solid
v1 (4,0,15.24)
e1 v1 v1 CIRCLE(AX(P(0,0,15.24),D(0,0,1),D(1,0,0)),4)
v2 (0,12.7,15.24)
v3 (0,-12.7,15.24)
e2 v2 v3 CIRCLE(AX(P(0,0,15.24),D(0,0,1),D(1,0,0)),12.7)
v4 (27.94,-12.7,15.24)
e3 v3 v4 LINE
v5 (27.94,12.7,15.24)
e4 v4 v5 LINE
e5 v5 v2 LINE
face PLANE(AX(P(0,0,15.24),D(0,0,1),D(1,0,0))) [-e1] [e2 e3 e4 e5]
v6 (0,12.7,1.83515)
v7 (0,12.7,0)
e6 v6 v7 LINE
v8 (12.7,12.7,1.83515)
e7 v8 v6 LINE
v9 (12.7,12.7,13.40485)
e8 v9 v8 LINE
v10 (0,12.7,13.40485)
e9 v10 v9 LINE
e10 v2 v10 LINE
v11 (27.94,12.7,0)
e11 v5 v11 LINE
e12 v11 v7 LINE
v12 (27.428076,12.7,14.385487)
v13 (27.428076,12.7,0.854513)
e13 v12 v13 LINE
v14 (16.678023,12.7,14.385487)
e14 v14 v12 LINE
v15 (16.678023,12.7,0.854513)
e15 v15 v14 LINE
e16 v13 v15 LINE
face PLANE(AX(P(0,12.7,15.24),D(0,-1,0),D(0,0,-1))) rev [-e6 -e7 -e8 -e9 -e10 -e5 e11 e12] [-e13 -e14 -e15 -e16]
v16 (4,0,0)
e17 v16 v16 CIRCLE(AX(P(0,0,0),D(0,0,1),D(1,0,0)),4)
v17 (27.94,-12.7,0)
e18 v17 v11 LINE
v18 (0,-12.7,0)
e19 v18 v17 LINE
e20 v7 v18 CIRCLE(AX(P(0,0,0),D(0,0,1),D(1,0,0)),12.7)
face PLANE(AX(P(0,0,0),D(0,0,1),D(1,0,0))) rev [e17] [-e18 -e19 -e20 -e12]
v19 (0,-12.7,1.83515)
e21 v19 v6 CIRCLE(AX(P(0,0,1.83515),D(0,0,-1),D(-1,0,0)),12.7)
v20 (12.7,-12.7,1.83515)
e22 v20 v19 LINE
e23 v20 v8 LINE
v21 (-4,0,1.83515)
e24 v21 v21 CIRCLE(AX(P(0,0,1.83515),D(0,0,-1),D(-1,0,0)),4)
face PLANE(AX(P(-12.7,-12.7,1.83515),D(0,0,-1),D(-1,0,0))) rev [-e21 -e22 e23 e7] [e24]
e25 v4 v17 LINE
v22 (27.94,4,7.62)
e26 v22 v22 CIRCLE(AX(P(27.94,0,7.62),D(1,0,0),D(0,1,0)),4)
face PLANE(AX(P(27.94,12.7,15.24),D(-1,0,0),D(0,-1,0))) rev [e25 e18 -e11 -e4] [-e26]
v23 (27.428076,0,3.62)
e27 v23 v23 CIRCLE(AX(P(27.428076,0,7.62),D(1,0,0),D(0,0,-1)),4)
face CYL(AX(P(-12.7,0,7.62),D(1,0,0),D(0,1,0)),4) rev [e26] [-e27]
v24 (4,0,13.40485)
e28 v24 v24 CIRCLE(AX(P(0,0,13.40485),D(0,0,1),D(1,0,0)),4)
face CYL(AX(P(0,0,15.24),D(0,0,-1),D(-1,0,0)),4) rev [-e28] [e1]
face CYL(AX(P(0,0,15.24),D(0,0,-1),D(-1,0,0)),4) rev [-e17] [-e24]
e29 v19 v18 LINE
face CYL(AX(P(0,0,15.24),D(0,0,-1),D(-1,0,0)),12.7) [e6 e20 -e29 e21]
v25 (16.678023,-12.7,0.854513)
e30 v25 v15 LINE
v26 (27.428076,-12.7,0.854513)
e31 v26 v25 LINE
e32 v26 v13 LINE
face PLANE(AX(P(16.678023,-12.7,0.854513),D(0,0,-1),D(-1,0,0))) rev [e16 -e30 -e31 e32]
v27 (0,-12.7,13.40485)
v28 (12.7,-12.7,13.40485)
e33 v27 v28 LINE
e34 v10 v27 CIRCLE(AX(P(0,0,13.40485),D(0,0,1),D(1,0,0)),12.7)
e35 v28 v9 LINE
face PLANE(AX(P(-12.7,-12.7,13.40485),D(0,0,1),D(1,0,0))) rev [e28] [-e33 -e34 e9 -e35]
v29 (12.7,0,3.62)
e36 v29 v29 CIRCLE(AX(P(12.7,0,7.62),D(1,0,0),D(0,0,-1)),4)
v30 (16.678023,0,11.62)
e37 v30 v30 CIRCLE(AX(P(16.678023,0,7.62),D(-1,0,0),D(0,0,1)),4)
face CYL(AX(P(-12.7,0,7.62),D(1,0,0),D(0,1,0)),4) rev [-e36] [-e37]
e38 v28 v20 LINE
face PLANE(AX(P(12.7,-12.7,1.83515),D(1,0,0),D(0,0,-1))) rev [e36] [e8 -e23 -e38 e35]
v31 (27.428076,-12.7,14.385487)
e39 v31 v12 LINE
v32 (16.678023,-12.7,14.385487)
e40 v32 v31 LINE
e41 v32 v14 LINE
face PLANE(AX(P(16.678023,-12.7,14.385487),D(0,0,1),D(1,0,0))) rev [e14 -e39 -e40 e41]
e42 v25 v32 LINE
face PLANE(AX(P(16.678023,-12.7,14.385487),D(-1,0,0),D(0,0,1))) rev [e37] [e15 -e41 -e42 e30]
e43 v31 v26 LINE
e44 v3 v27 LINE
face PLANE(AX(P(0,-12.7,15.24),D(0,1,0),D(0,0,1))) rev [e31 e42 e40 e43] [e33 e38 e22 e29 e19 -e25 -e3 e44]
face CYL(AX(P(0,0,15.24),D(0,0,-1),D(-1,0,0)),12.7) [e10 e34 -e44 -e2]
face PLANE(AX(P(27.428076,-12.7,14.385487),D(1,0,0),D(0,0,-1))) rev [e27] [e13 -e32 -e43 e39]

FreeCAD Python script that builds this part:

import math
import FreeCAD as App
import Part
import Sketcher
from FreeCAD import Vector
Q = App.Units.Quantity

doc = App.newDocument("Part")
params = doc.addObject("Spreadsheet::Sheet", "Params")
for row, (alias, value) in enumerate([
    ("sketch1_radius", "0.5 in"),
    ("sketch1_width", "1.1 in"),
    ("pad1_length", "0.6 in"),
    ("sketch2_width", "1 in"),
], start=1):
    params.set(f"A{row}", alias)
    params.set(f"B{row}", "=" + value)
    params.setAlias(f"B{row}", alias)

body = doc.addObject("PartDesign::Body", "Body")

sketch1 = doc.addObject("Sketcher::SketchObject", "Sketch")
body.addObject(sketch1)
sketch1.AttachmentSupport = (doc.XY_Plane, [""])
sketch1.MapMode = "FlatFace"
sketch1.addGeometry(Part.LineSegment(Vector(27.9, 12.7, 0), Vector(0, 12.7, 0)), False)
sketch1.addGeometry(Part.ArcOfCircle(Part.Circle(Vector(0, 0, 0), Vector(0, 0, 1), 12.7), math.radians(90), math.radians(270)), False)
sketch1.addGeometry(Part.LineSegment(Vector(0, -12.7, 0), Vector(27.9, -12.7, 0)), False)
sketch1.addGeometry(Part.LineSegment(Vector(27.9, -12.7, 0), Vector(27.9, 12.7, 0)), False)
sketch1.addGeometry(Part.Circle(Vector(0, 0, 0), Vector(0, 0, 1), 4), False)
sketch1.addConstraint(Sketcher.Constraint("Tangent", 0, 2, 1, 1))
sketch1.addConstraint(Sketcher.Constraint("Tangent", 1, 2, 2, 1))
sketch1.addConstraint(Sketcher.Constraint("Coincident", 2, 2, 3, 1))
sketch1.addConstraint(Sketcher.Constraint("Coincident", 3, 2, 0, 1))
sketch1.addConstraint(Sketcher.Constraint("Horizontal", 0))
sketch1.addConstraint(Sketcher.Constraint("Horizontal", 2))
sketch1.addConstraint(Sketcher.Constraint("Vertical", 3))
sketch1.addConstraint(Sketcher.Constraint("Coincident", 1, 3, -1, 1))
sketch1.addConstraint(Sketcher.Constraint("Coincident", 4, 3, -1, 1))
sketch1.addConstraint(Sketcher.Constraint("Radius", 1, Q("0.5 in")))
sketch1.addConstraint(Sketcher.Constraint("DistanceX", 0, 2, 0, 1, Q("1.1 in")))
sketch1.addConstraint(Sketcher.Constraint("Diameter", 4, 8.0))
sketch1.setExpression("Constraints[9]", "Params.sketch1_radius")
sketch1.setExpression("Constraints[10]", "Params.sketch1_width")
pad1 = doc.addObject("PartDesign::Pad", "Pad")
body.addObject(pad1)
pad1.Profile = sketch1
pad1.setExpression("Length", "Params.pad1_length")

sketch2 = doc.addObject("Sketcher::SketchObject", "Sketch001")
body.addObject(sketch2)
sketch2.AttachmentSupport = (doc.XZ_Plane, [""])
sketch2.MapMode = "FlatFace"
sketch2.AttachmentOffset = App.Placement(Vector(0, 0, -0.5 * 25.4), App.Rotation())
sketch2.addGeometry(Part.LineSegment(Vector(-13, 2, 0), Vector(-13, 13, 0)), False)
sketch2.addGeometry(Part.LineSegment(Vector(-13, 13, 0), Vector(13, 13, 0)), False)
sketch2.addGeometry(Part.LineSegment(Vector(13, 13, 0), Vector(13, 2, 0)), False)
sketch2.addGeometry(Part.LineSegment(Vector(13, 2, 0), Vector(-13, 2, 0)), False)
sketch2.addConstraint(Sketcher.Constraint("Coincident", 0, 2, 1, 1))
sketch2.addConstraint(Sketcher.Constraint("Coincident", 1, 2, 2, 1))
sketch2.addConstraint(Sketcher.Constraint("Coincident", 2, 2, 3, 1))
sketch2.addConstraint(Sketcher.Constraint("Coincident", 3, 2, 0, 1))
sketch2.addConstraint(Sketcher.Constraint("Vertical", 0))
sketch2.addConstraint(Sketcher.Constraint("Horizontal", 1))
sketch2.addConstraint(Sketcher.Constraint("Vertical", 2))
sketch2.addConstraint(Sketcher.Constraint("Horizontal", 3))
sketch2.addConstraint(Sketcher.Constraint("DistanceX", 1, 1, 1, 2, Q("1 in")))
sketch2.addConstraint(Sketcher.Constraint("DistanceX", 0, 2, -1, 1, Q("0.5 in")))
sketch2.addConstraint(Sketcher.Constraint("DistanceY", 0, 1, 0, 2, Q("0.4555 in")))
sketch2.addConstraint(Sketcher.Constraint("DistanceY", -1, 1, 0, 2, 13.40485))
sketch2.setExpression("Constraints[8]", "Params.sketch2_width")
pocket1 = doc.addObject("PartDesign::Pocket", "Pocket")
body.addObject(pocket1)
pocket1.Profile = sketch2
pocket1.Type = "ThroughAll"
pocket1.Reversed = True

sketch3 = doc.addObject("Sketcher::SketchObject", "Sketch002")
body.addObject(sketch3)
sketch3.AttachmentSupport = (doc.XZ_Plane, [""])
sketch3.MapMode = "FlatFace"
sketch3.AttachmentOffset = App.Placement(Vector(0, 0, -0.5 * 25.4), App.Rotation())
sketch3.addGeometry(Part.LineSegment(Vector(17, 1, 0), Vector(17, 14, 0)), False)
sketch3.addGeometry(Part.LineSegment(Vector(17, 14, 0), Vector(27, 14, 0)), False)
sketch3.addGeometry(Part.LineSegment(Vector(27, 14, 0), Vector(27, 1, 0)), False)
sketch3.addGeometry(Part.LineSegment(Vector(27, 1, 0), Vector(17, 1, 0)), False)
sketch3.addConstraint(Sketcher.Constraint("Coincident", 0, 2, 1, 1))
sketch3.addConstraint(Sketcher.Constraint("Coincident", 1, 2, 2, 1))
sketch3.addConstraint(Sketcher.Constraint("Coincident", 2, 2, 3, 1))
sketch3.addConstraint(Sketcher.Constraint("Coincident", 3, 2, 0, 1))
sketch3.addConstraint(Sketcher.Constraint("Vertical", 0))
sketch3.addConstraint(Sketcher.Constraint("Horizontal", 1))
sketch3.addConstraint(Sketcher.Constraint("Vertical", 2))
sketch3.addConstraint(Sketcher.Constraint("Horizontal", 3))
sketch3.addConstraint(Sketcher.Constraint("DistanceX", 1, 1, 1, 2, 10.750053))
sketch3.addConstraint(Sketcher.Constraint("DistanceY", 0, 1, 0, 2, 13.530974))
sketch3.addConstraint(Sketcher.Constraint("DistanceX", -1, 1, 0, 2, 16.678023))
sketch3.addConstraint(Sketcher.Constraint("DistanceY", -1, 1, 0, 2, 14.385487))
pocket2 = doc.addObject("PartDesign::Pocket", "Pocket001")
body.addObject(pocket2)
pocket2.Profile = sketch3
pocket2.Type = "ThroughAll"
pocket2.Reversed = True

sketch4 = doc.addObject("Sketcher::SketchObject", "Sketch003")
body.addObject(sketch4)
sketch4.AttachmentSupport = (doc.YZ_Plane, [""])
sketch4.MapMode = "FlatFace"
sketch4.AttachmentOffset = App.Placement(Vector(0, 0, 1.1 * 25.4), App.Rotation())
sketch4.addGeometry(Part.Circle(Vector(0, 7.6, 0), Vector(0, 0, 1), 4), False)
sketch4.addConstraint(Sketcher.Constraint("PointOnObject", 0, 3, -2))
sketch4.addConstraint(Sketcher.Constraint("DistanceY", -1, 1, 0, 3, Q("0.3 in")))
sketch4.addConstraint(Sketcher.Constraint("Diameter", 0, 8.0))
pocket3 = doc.addObject("PartDesign::Pocket", "Pocket002")
body.addObject(pocket3)
pocket3.Profile = sketch4
pocket3.Type = "ThroughAll"

doc.recompute()
